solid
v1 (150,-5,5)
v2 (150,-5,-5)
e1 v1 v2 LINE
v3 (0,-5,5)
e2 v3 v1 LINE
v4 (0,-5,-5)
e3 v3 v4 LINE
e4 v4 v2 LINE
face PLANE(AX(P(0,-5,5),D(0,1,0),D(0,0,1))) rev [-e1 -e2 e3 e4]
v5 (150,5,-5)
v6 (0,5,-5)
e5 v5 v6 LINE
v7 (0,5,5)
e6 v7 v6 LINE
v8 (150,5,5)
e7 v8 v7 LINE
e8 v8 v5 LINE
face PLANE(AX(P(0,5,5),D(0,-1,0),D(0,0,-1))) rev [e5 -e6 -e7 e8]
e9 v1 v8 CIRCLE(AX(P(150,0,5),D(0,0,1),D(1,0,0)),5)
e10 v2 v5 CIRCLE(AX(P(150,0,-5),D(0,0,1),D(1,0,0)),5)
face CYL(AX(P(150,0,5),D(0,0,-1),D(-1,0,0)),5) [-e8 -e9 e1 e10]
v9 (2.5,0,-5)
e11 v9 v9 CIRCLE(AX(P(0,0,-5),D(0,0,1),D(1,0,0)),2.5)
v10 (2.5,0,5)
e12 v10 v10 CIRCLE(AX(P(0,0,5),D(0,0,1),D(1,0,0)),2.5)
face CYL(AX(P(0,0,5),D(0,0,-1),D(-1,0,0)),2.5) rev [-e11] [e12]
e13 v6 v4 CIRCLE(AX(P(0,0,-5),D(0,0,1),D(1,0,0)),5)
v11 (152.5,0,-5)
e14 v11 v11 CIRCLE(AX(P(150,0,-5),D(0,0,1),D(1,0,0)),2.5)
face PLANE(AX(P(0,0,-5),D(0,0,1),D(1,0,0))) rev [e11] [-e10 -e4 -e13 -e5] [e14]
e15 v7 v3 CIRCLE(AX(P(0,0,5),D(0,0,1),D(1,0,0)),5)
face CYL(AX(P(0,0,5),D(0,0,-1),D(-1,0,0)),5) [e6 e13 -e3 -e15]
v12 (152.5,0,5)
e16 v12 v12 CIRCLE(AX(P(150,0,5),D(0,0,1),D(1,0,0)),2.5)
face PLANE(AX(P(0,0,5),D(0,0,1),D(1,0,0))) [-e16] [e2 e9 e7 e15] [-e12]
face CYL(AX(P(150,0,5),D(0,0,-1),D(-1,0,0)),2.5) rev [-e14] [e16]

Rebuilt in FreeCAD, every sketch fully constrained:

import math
import FreeCAD as App
import Part
import Sketcher

V = App.Vector

doc = App.newDocument("Part")
body = doc.addObject("PartDesign::Body", "Body")

# Sketch on XY plane
sketch1 = body.newObject("Sketcher::SketchObject", "Sketch")
sketch1.AttachmentSupport = (doc.getObject("XY_Plane"), [""])
sketch1.MapMode = "FlatFace"
sketch1.addGeometry(Part.LineSegment(V(150, 5, 0), V(0, 5, 0)), False)
sketch1.addGeometry(Part.ArcOfCircle(Part.Circle(V(0, 0, 0), V(0, 0, 1), 5), math.radians(90), math.radians(270)), False)
sketch1.addGeometry(Part.LineSegment(V(0, -5, 0), V(150, -5, 0)), False)
sketch1.addGeometry(Part.ArcOfCircle(Part.Circle(V(150, 0, 0), V(0, 0, 1), 5), math.radians(-90), math.radians(90)), False)
sketch1.addGeometry(Part.Circle(V(150, 0, 0), V(0, 0, 1), 2.5), False)
sketch1.addGeometry(Part.Circle(V(0, 0, 0), V(0, 0, 1), 2.5), False)
sketch1.addConstraint(Sketcher.Constraint("Tangent", 0, 2, 1, 1))
sketch1.addConstraint(Sketcher.Constraint("Tangent", 1, 2, 2, 1))
sketch1.addConstraint(Sketcher.Constraint("Tangent", 2, 2, 3, 1))
sketch1.addConstraint(Sketcher.Constraint("Tangent", 3, 2, 0, 1))
sketch1.addConstraint(Sketcher.Constraint("Horizontal", 0))
sketch1.addConstraint(Sketcher.Constraint("Horizontal", 2))
sketch1.addConstraint(Sketcher.Constraint("Coincident", 1, 3, -1, 1))
sketch1.addConstraint(Sketcher.Constraint("Coincident", 5, 3, -1, 1))
sketch1.addConstraint(Sketcher.Constraint("Coincident", 4, 3, 3, 3))
sketch1.addConstraint(Sketcher.Constraint("Equal", 4, 5))
sketch1.addConstraint(Sketcher.Constraint("Diameter", 4, 5.0))
sketch1.addConstraint(Sketcher.Constraint("Radius", 1, 5.0))
sketch1.addConstraint(Sketcher.Constraint("DistanceX", 0, 2, 0, 1, 150.0))
pad1 = body.newObject("PartDesign::Pad", "Pad")
pad1.Profile = sketch1
pad1.Length = 10
pad1.Midplane = True

doc.recompute()
